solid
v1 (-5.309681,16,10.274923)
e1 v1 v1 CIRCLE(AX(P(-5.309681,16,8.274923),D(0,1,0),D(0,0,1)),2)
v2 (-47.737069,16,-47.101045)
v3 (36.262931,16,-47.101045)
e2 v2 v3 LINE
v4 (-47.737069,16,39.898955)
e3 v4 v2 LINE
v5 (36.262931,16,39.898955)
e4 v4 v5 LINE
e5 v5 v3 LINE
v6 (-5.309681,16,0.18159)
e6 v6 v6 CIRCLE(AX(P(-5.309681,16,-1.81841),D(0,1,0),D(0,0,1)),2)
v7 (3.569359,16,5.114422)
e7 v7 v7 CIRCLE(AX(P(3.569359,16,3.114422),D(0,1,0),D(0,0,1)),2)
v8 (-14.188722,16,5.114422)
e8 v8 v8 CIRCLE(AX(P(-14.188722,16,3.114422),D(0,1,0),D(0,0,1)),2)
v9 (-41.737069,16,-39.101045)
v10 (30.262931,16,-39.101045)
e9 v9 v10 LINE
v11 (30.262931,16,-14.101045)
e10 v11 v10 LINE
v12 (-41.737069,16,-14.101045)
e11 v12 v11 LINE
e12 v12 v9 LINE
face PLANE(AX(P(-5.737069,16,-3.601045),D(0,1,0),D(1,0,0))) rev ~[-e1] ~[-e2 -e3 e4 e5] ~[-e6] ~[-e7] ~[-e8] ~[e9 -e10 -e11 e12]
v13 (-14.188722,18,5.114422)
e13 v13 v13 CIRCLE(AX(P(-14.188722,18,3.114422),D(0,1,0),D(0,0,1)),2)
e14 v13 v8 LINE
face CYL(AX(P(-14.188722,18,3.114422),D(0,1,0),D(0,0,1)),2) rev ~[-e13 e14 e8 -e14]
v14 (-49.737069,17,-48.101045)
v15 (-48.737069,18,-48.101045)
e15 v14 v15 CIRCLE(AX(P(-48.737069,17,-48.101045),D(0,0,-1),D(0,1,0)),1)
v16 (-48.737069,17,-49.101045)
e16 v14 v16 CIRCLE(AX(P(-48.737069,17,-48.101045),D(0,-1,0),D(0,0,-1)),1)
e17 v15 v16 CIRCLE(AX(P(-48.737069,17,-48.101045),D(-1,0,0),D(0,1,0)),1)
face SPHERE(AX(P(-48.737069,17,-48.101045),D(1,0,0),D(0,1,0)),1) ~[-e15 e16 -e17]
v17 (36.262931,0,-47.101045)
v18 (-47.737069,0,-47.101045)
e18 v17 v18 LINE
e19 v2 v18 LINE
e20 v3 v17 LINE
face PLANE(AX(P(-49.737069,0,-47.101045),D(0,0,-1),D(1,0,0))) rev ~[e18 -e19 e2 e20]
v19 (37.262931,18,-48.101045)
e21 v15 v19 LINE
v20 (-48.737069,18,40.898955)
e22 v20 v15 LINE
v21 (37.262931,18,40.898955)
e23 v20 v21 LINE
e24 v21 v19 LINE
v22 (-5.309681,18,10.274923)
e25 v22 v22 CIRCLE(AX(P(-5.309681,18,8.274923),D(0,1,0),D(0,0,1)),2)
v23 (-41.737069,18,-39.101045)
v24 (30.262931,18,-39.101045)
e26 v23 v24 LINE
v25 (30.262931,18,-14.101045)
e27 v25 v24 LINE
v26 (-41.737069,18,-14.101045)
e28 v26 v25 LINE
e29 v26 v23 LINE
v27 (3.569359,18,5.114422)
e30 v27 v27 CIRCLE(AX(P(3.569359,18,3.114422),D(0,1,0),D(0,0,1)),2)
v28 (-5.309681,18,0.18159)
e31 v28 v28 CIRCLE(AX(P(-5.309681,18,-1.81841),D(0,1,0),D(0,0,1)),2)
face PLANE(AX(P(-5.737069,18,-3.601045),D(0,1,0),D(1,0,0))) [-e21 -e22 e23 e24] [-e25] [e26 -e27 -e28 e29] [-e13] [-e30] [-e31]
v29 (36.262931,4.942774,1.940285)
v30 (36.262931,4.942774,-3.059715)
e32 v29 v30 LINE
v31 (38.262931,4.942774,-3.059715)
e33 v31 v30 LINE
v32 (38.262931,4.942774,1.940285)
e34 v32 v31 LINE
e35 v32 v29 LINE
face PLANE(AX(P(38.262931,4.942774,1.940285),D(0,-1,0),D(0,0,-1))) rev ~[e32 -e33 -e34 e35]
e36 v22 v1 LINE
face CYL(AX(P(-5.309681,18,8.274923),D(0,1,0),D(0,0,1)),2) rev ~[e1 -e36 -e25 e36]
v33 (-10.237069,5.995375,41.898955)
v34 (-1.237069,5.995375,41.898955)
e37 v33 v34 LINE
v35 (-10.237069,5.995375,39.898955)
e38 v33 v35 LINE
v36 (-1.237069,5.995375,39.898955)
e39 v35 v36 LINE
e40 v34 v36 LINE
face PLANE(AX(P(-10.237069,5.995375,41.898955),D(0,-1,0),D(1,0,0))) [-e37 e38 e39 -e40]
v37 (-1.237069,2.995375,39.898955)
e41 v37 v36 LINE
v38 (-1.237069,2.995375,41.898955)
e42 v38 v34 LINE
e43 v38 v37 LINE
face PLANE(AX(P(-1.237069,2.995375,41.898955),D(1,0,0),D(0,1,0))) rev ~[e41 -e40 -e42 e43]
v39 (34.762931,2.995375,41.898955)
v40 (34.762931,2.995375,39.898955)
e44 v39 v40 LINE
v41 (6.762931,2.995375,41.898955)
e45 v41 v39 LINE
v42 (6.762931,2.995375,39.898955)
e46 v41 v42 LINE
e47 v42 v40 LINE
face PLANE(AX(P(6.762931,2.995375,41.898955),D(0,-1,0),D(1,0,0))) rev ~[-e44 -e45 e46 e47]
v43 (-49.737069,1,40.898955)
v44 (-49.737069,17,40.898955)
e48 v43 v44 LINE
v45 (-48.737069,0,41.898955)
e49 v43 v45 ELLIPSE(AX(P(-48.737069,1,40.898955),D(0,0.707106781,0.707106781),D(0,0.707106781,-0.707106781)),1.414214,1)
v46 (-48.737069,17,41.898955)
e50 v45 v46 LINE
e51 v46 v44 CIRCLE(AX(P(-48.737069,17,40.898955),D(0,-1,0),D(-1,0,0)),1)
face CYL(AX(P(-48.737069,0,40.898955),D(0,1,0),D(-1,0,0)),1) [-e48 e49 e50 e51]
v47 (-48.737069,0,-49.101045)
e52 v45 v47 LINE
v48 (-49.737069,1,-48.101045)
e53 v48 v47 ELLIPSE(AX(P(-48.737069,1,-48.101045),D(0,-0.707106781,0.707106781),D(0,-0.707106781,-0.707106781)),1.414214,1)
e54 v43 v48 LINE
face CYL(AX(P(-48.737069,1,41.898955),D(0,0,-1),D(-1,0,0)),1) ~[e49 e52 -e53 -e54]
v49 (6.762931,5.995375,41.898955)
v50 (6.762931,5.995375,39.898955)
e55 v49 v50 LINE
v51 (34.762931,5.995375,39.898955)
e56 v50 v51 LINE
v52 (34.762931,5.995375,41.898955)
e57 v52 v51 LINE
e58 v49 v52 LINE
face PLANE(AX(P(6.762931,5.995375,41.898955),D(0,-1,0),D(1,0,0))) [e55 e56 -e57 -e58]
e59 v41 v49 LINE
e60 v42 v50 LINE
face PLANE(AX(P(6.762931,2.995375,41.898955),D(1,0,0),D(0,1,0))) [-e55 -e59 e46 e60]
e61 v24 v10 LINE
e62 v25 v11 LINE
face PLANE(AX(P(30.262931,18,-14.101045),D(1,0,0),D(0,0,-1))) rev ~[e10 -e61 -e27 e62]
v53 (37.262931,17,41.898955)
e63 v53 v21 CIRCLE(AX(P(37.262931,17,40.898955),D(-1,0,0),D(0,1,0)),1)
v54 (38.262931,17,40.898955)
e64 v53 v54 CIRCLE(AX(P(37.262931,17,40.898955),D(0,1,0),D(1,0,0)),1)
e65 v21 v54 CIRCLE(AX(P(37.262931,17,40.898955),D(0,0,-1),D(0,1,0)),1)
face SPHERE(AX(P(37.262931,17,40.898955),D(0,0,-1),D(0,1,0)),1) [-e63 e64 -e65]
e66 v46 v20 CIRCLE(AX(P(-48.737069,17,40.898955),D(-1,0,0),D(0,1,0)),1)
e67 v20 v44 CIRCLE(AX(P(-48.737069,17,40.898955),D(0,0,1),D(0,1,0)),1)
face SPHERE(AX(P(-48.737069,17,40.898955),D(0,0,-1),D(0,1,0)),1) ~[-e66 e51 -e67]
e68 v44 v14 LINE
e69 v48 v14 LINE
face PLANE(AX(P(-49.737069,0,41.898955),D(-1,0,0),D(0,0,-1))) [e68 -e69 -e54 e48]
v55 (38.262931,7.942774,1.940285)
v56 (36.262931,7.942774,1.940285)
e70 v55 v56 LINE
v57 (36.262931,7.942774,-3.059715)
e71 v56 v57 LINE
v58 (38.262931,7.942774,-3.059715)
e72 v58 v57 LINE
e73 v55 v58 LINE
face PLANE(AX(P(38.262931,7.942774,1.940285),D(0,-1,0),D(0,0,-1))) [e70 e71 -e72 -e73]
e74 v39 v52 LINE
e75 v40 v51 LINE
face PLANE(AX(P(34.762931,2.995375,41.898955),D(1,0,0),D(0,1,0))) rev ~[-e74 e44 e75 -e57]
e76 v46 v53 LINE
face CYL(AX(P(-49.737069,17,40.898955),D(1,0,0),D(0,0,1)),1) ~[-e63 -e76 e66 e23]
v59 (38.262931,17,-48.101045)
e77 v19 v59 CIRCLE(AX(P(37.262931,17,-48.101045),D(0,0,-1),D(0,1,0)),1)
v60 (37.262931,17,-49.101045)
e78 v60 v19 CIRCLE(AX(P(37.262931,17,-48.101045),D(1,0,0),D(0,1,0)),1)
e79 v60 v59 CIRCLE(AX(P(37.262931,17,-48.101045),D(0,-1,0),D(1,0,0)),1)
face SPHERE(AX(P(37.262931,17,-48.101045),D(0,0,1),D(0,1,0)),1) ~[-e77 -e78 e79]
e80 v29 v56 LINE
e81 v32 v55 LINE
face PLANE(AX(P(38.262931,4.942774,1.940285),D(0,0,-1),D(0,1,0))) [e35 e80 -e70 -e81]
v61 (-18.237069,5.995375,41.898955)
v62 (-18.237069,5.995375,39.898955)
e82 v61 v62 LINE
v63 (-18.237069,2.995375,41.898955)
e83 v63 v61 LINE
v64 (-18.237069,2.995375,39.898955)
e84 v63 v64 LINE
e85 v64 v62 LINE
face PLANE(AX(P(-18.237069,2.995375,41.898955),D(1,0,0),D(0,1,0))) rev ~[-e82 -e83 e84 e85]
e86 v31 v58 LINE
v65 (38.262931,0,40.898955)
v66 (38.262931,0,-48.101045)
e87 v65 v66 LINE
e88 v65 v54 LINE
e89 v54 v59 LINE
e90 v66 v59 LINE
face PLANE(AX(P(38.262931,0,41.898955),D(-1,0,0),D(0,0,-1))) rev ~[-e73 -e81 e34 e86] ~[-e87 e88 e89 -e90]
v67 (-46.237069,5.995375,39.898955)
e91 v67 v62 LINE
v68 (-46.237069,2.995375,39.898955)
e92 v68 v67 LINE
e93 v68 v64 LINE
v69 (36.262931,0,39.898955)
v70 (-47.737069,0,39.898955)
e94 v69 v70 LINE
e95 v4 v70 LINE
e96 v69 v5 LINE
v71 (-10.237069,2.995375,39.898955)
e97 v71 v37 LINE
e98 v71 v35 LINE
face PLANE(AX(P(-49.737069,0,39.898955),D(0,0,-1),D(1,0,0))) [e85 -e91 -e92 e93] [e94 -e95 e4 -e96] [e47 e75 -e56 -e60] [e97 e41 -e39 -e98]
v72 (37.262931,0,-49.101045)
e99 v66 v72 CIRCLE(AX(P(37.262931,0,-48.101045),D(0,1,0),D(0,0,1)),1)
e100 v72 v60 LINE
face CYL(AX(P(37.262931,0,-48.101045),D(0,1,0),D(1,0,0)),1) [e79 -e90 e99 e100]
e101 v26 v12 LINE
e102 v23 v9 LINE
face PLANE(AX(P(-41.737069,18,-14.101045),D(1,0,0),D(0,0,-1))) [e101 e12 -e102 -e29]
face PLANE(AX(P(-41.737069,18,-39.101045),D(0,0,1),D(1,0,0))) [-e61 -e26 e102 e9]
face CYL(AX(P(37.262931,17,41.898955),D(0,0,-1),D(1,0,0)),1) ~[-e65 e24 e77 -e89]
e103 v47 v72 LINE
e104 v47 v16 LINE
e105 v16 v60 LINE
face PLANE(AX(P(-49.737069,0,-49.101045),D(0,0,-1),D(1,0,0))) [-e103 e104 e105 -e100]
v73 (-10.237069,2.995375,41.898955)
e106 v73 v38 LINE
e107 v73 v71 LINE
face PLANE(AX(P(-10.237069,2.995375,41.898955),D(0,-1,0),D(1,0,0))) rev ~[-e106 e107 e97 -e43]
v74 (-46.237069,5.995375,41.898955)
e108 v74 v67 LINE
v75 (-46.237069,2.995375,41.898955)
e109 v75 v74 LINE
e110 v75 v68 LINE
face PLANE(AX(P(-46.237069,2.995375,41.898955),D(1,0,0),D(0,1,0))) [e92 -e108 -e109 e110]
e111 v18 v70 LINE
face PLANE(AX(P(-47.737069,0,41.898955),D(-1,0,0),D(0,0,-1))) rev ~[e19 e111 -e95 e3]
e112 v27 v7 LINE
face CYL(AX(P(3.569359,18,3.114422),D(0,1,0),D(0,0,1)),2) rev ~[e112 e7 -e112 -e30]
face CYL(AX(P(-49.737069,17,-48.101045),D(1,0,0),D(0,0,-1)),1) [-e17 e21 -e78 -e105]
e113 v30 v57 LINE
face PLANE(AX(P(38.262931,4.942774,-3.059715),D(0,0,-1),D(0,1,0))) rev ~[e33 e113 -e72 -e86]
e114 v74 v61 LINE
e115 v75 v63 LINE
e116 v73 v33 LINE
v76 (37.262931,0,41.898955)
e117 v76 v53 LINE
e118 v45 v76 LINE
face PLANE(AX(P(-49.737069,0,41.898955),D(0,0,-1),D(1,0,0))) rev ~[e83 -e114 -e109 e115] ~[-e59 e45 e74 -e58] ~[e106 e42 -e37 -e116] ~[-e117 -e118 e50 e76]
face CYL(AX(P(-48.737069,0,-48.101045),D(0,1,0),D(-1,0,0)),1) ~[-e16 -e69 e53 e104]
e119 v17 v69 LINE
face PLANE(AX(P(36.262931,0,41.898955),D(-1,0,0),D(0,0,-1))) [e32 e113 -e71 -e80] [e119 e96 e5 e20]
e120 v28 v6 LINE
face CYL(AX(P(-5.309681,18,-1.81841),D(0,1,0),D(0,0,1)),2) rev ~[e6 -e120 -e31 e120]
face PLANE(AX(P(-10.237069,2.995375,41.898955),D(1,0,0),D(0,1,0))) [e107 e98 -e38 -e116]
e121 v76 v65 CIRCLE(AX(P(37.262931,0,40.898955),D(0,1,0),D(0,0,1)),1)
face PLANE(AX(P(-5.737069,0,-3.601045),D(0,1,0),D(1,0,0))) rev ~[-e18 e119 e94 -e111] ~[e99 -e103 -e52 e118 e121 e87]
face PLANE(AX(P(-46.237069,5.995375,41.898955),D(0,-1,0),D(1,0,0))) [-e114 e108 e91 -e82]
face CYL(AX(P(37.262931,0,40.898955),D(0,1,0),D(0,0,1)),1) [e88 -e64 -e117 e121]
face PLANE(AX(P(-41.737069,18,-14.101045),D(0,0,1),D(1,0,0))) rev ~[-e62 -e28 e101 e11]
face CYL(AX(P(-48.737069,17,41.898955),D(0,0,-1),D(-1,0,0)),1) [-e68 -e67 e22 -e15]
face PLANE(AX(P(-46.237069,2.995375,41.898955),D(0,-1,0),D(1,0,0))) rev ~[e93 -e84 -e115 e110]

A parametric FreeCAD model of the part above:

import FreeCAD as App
import Part
import Sketcher
from FreeCAD import Vector
Q = App.Units.Quantity


def edges_at(feature, points):
    """Names of the edges that pass closest to the given points."""
    edges = feature.Shape.Edges
    near = lambda p: min(range(len(edges)), key=lambda i: edges[i].distToShape(Part.Vertex(*p))[0])
    return sorted({f"Edge{near(p) + 1}" for p in points})


def faces_at(feature, points):
    """Names of the faces that lie closest to the given points."""
    faces = feature.Shape.Faces
    near = lambda p: min(range(len(faces)), key=lambda i: faces[i].distToShape(Part.Vertex(*p))[0])
    return sorted({f"Face{near(p) + 1}" for p in points})

doc = App.newDocument("Part")
body = doc.addObject("PartDesign::Body", "Body")

# Sketch on XZ plane
sketch1 = doc.addObject("Sketcher::SketchObject", "Sketch")
body.addObject(sketch1)
sketch1.AttachmentSupport = (doc.XZ_Plane, [""])
sketch1.MapMode = "FlatFace"
sketch1.addGeometry(Part.LineSegment(Vector(-50, -49, 0), Vector(-50, 42, 0)), False)
sketch1.addGeometry(Part.LineSegment(Vector(-50, 42, 0), Vector(38, 42, 0)), False)
sketch1.addGeometry(Part.LineSegment(Vector(38, 42, 0), Vector(38, -49, 0)), False)
sketch1.addGeometry(Part.LineSegment(Vector(38, -49, 0), Vector(-50, -49, 0)), False)
sketch1.addConstraint(Sketcher.Constraint("Coincident", 0, 2, 1, 1))
sketch1.addConstraint(Sketcher.Constraint("Coincident", 1, 2, 2, 1))
sketch1.addConstraint(Sketcher.Constraint("Coincident", 2, 2, 3, 1))
sketch1.addConstraint(Sketcher.Constraint("Coincident", 3, 2, 0, 1))
sketch1.addConstraint(Sketcher.Constraint("Vertical", 0))
sketch1.addConstraint(Sketcher.Constraint("Horizontal", 1))
sketch1.addConstraint(Sketcher.Constraint("Vertical", 2))
sketch1.addConstraint(Sketcher.Constraint("Horizontal", 3))
sketch1.addConstraint(Sketcher.Constraint("DistanceX", 1, 1, 1, 2, Q("88 mm")))
sketch1.addConstraint(Sketcher.Constraint("DistanceY", 0, 1, 0, 2, Q("91 mm")))
sketch1.addConstraint(Sketcher.Constraint("DistanceX", 0, 2, -1, 1, Q("49.737069 mm")))
sketch1.addConstraint(Sketcher.Constraint("DistanceY", -1, 1, 0, 2, Q("41.898955 mm")))
pad1 = doc.addObject("PartDesign::Pad", "Pad")
body.addObject(pad1)
pad1.Profile = sketch1
pad1.Length = 18
pad1.Reversed = True
doc.recompute()

thickness = doc.addObject("PartDesign::Thickness", "Thickness")
body.addObject(thickness)
thickness.Base = (pad1, faces_at(pad1, [(-5.737, 0, -3.601)]))
thickness.Value = 2
thickness.Reversed = True
thickness.Join = "Intersection"
doc.recompute()

fillet = doc.addObject("PartDesign::Fillet", "Fillet")
body.addObject(fillet)
fillet.Base = (thickness, edges_at(thickness, [
    (38.263, 18, -3.601),
    (-5.737, 18, -49.101),
    (-49.737, 18, -3.601),
    (-49.737, 0, -3.601),
    (-5.737, 18, 41.899),
    (-49.737, 9, -49.101),
    (38.263, 9, -49.101),
    (38.263, 9, 41.899),
    (-49.737, 9, 41.899),
]))
fillet.Radius = 1

# Sketch on XZ plane
sketch2 = doc.addObject("Sketcher::SketchObject", "Sketch001")
body.addObject(sketch2)
sketch2.AttachmentSupport = (doc.XZ_Plane, [""])
sketch2.MapMode = "FlatFace"
sketch2.AttachmentOffset = App.Placement(Vector(0, 0, -18), App.Rotation())
sketch2.addGeometry(Part.Circle(Vector(-5.3, -1.8, 0), Vector(0, 0, 1), 2), False)
sketch2.addGeometry(Part.Circle(Vector(-5.3, 8.3, 0), Vector(0, 0, 1), 2), False)
sketch2.addGeometry(Part.Circle(Vector(-14.2, 3.1, 0), Vector(0, 0, 1), 2), False)
sketch2.addGeometry(Part.Circle(Vector(3.6, 3.1, 0), Vector(0, 0, 1), 2), False)
sketch2.addGeometry(Part.LineSegment(Vector(-41.7, -39.1, 0), Vector(-41.7, -14.1, 0)), False)
sketch2.addGeometry(Part.LineSegment(Vector(-41.7, -14.1, 0), Vector(30.3, -14.1, 0)), False)
sketch2.addGeometry(Part.LineSegment(Vector(30.3, -14.1, 0), Vector(30.3, -39.1, 0)), False)
sketch2.addGeometry(Part.LineSegment(Vector(30.3, -39.1, 0), Vector(-41.7, -39.1, 0)), False)
sketch2.addConstraint(Sketcher.Constraint("Coincident", 4, 2, 5, 1))
sketch2.addConstraint(Sketcher.Constraint("Coincident", 5, 2, 6, 1))
sketch2.addConstraint(Sketcher.Constraint("Coincident", 6, 2, 7, 1))
sketch2.addConstraint(Sketcher.Constraint("Coincident", 7, 2, 4, 1))
sketch2.addConstraint(Sketcher.Constraint("Vertical", 4))
sketch2.addConstraint(Sketcher.Constraint("Horizontal", 5))
sketch2.addConstraint(Sketcher.Constraint("Vertical", 6))
sketch2.addConstraint(Sketcher.Constraint("Horizontal", 7))
sketch2.addConstraint(Sketcher.Constraint("Equal", 0, 1))
sketch2.addConstraint(Sketcher.Constraint("Equal", 1, 2))
sketch2.addConstraint(Sketcher.Constraint("Equal", 2, 3))
sketch2.addConstraint(Sketcher.Constraint("Horizontal", 2, 3, 3, 3))
sketch2.addConstraint(Sketcher.Constraint("Vertical", 0, 3, 1, 3))
sketch2.addConstraint(Sketcher.Constraint("Diameter", 0, Q("4 mm")))
sketch2.addConstraint(Sketcher.Constraint("DistanceX", 5, 1, 5, 2, Q("72 mm")))
sketch2.addConstraint(Sketcher.Constraint("DistanceY", 4, 1, 4, 2, Q("25 mm")))
sketch2.addConstraint(Sketcher.Constraint("DistanceY", 2, 3, 1, 3, Q("5.160501 mm")))
sketch2.addConstraint(Sketcher.Constraint("DistanceX", 0, 3, -1, 1, Q("5.309681 mm")))
sketch2.addConstraint(Sketcher.Constraint("DistanceY", 0, 3, -1, 1, Q("1.81841 mm")))
sketch2.addConstraint(Sketcher.Constraint("DistanceX", 2, 3, -1, 1, Q("14.188722 mm")))
sketch2.addConstraint(Sketcher.Constraint("DistanceX", -1, 1, 3, 3, Q("3.569359 mm")))
sketch2.addConstraint(Sketcher.Constraint("DistanceX", 4, 2, -1, 1, Q("41.737069 mm")))
sketch2.addConstraint(Sketcher.Constraint("DistanceY", 0, 3, 2, 3, Q("4.932832 mm")))
sketch2.addConstraint(Sketcher.Constraint("DistanceY", 4, 2, 1, 3, Q("22.375968 mm")))
pocket1 = doc.addObject("PartDesign::Pocket", "Pocket")
body.addObject(pocket1)
pocket1.Profile = sketch2
pocket1.Length = 18
pocket1.Reversed = True

# Sketch on XY plane
sketch3 = doc.addObject("Sketcher::SketchObject", "Sketch002")
body.addObject(sketch3)
sketch3.AttachmentSupport = (doc.XY_Plane, [""])
sketch3.MapMode = "FlatFace"
sketch3.AttachmentOffset = App.Placement(Vector(0, 0, 41.898955), App.Rotation())
sketch3.addGeometry(Part.LineSegment(Vector(-46.2, 6, 0), Vector(-46.2, 3, 0)), False)
sketch3.addGeometry(Part.LineSegment(Vector(-46.2, 3, 0), Vector(-18.2, 3, 0)), False)
sketch3.addGeometry(Part.LineSegment(Vector(-18.2, 3, 0), Vector(-18.2, 6, 0)), False)
sketch3.addGeometry(Part.LineSegment(Vector(-18.2, 6, 0), Vector(-46.2, 6, 0)), False)
sketch3.addConstraint(Sketcher.Constraint("Coincident", 0, 2, 1, 1))
sketch3.addConstraint(Sketcher.Constraint("Coincident", 1, 2, 2, 1))
sketch3.addConstraint(Sketcher.Constraint("Coincident", 2, 2, 3, 1))
sketch3.addConstraint(Sketcher.Constraint("Coincident", 3, 2, 0, 1))
sketch3.addConstraint(Sketcher.Constraint("Vertical", 0))
sketch3.addConstraint(Sketcher.Constraint("Horizontal", 1))
sketch3.addConstraint(Sketcher.Constraint("Vertical", 2))
sketch3.addConstraint(Sketcher.Constraint("Horizontal", 3))
sketch3.addConstraint(Sketcher.Constraint("DistanceX", 1, 1, 1, 2, Q("28 mm")))
sketch3.addConstraint(Sketcher.Constraint("DistanceY", 0, 2, 0, 1, Q("3 mm")))
sketch3.addConstraint(Sketcher.Constraint("DistanceX", 0, 2, -1, 1, Q("46.237069 mm")))
sketch3.addConstraint(Sketcher.Constraint("DistanceY", -1, 1, 0, 2, Q("2.995375 mm")))
pocket2 = doc.addObject("PartDesign::Pocket", "Pocket001")
body.addObject(pocket2)
pocket2.Profile = sketch3
pocket2.Type = "UpToFirst"

# Sketch on XY plane
sketch4 = doc.addObject("Sketcher::SketchObject", "Sketch003")
body.addObject(sketch4)
sketch4.AttachmentSupport = (doc.XY_Plane, [""])
sketch4.MapMode = "FlatFace"
sketch4.AttachmentOffset = App.Placement(Vector(0, 0, 41.898955), App.Rotation())
sketch4.addGeometry(Part.LineSegment(Vector(6.8, 6, 0), Vector(6.8, 3, 0)), False)
sketch4.addGeometry(Part.LineSegment(Vector(6.8, 3, 0), Vector(34.8, 3, 0)), False)
sketch4.addGeometry(Part.LineSegment(Vector(34.8, 3, 0), Vector(34.8, 6, 0)), False)
sketch4.addGeometry(Part.LineSegment(Vector(34.8, 6, 0), Vector(6.8, 6, 0)), False)
sketch4.addConstraint(Sketcher.Constraint("Coincident", 0, 2, 1, 1))
sketch4.addConstraint(Sketcher.Constraint("Coincident", 1, 2, 2, 1))
sketch4.addConstraint(Sketcher.Constraint("Coincident", 2, 2, 3, 1))
sketch4.addConstraint(Sketcher.Constraint("Coincident", 3, 2, 0, 1))
sketch4.addConstraint(Sketcher.Constraint("Vertical", 0))
sketch4.addConstraint(Sketcher.Constraint("Horizontal", 1))
sketch4.addConstraint(Sketcher.Constraint("Vertical", 2))
sketch4.addConstraint(Sketcher.Constraint("Horizontal", 3))
sketch4.addConstraint(Sketcher.Constraint("DistanceX", 1, 1, 1, 2, Q("28 mm")))
sketch4.addConstraint(Sketcher.Constraint("DistanceY", 0, 2, 0, 1, Q("3 mm")))
sketch4.addConstraint(Sketcher.Constraint("DistanceX", -1, 1, 0, 2, Q("6.762931 mm")))
sketch4.addConstraint(Sketcher.Constraint("DistanceY", -1, 1, 0, 2, Q("2.995375 mm")))
pocket3 = doc.addObject("PartDesign::Pocket", "Pocket002")
body.addObject(pocket3)
pocket3.Profile = sketch4
pocket3.Type = "UpToFirst"

# Sketch on XY plane
sketch5 = doc.addObject("Sketcher::SketchObject", "Sketch004")
body.addObject(sketch5)
sketch5.AttachmentSupport = (doc.XY_Plane, [""])
sketch5.MapMode = "FlatFace"
sketch5.AttachmentOffset = App.Placement(Vector(0, 0, 41.898955), App.Rotation())
sketch5.addGeometry(Part.LineSegment(Vector(-10.2, 6, 0), Vector(-10.2, 3, 0)), False)
sketch5.addGeometry(Part.LineSegment(Vector(-10.2, 3, 0), Vector(-1.2, 3, 0)), False)
sketch5.addGeometry(Part.LineSegment(Vector(-1.2, 3, 0), Vector(-1.2, 6, 0)), False)
sketch5.addGeometry(Part.LineSegment(Vector(-1.2, 6, 0), Vector(-10.2, 6, 0)), False)
sketch5.addConstraint(Sketcher.Constraint("Coincident", 0, 2, 1, 1))
sketch5.addConstraint(Sketcher.Constraint("Coincident", 1, 2, 2, 1))
sketch5.addConstraint(Sketcher.Constraint("Coincident", 2, 2, 3, 1))
sketch5.addConstraint(Sketcher.Constraint("Coincident", 3, 2, 0, 1))
sketch5.addConstraint(Sketcher.Constraint("Vertical", 0))
sketch5.addConstraint(Sketcher.Constraint("Horizontal", 1))
sketch5.addConstraint(Sketcher.Constraint("Vertical", 2))
sketch5.addConstraint(Sketcher.Constraint("Horizontal", 3))
sketch5.addConstraint(Sketcher.Constraint("DistanceX", 1, 1, 1, 2, Q("9 mm")))
sketch5.addConstraint(Sketcher.Constraint("DistanceY", 0, 2, 0, 1, Q("3 mm")))
sketch5.addConstraint(Sketcher.Constraint("DistanceX", 0, 2, -1, 1, Q("10.237069 mm")))
sketch5.addConstraint(Sketcher.Constraint("DistanceY", -1, 1, 0, 2, Q("2.995375 mm")))
pocket4 = doc.addObject("PartDesign::Pocket", "Pocket003")
body.addObject(pocket4)
pocket4.Profile = sketch5
pocket4.Type = "UpToFirst"

# Sketch on YZ plane
sketch6 = doc.addObject("Sketcher::SketchObject", "Sketch005")
body.addObject(sketch6)
sketch6.AttachmentSupport = (doc.YZ_Plane, [""])
sketch6.MapMode = "FlatFace"
sketch6.AttachmentOffset = App.Placement(Vector(0, 0, 38.262931), App.Rotation())
sketch6.addGeometry(Part.LineSegment(Vector(7.9, 1.9, 0), Vector(4.9, 1.9, 0)), False)
sketch6.addGeometry(Part.LineSegment(Vector(4.9, 1.9, 0), Vector(4.9, -3.1, 0)), False)
sketch6.addGeometry(Part.LineSegment(Vector(4.9, -3.1, 0), Vector(7.9, -3.1, 0)), False)
sketch6.addGeometry(Part.LineSegment(Vector(7.9, -3.1, 0), Vector(7.9, 1.9, 0)), False)
sketch6.addConstraint(Sketcher.Constraint("Coincident", 0, 2, 1, 1))
sketch6.addConstraint(Sketcher.Constraint("Coincident", 1, 2, 2, 1))
sketch6.addConstraint(Sketcher.Constraint("Coincident", 2, 2, 3, 1))
sketch6.addConstraint(Sketcher.Constraint("Coincident", 3, 2, 0, 1))
sketch6.addConstraint(Sketcher.Constraint("Horizontal", 0))
sketch6.addConstraint(Sketcher.Constraint("Vertical", 1))
sketch6.addConstraint(Sketcher.Constraint("Horizontal", 2))
sketch6.addConstraint(Sketcher.Constraint("Vertical", 3))
sketch6.addConstraint(Sketcher.Constraint("DistanceX", 0, 2, 0, 1, Q("3 mm")))
sketch6.addConstraint(Sketcher.Constraint("DistanceY", 1, 2, 1, 1, Q("5 mm")))
sketch6.addConstraint(Sketcher.Constraint("DistanceX", -1, 1, 0, 2, Q("4.942774 mm")))
sketch6.addConstraint(Sketcher.Constraint("DistanceY", -1, 1, 0, 2, Q("1.940285 mm")))
pocket5 = doc.addObject("PartDesign::Pocket", "Pocket004")
body.addObject(pocket5)
pocket5.Profile = sketch6
pocket5.Type = "UpToFirst"

doc.recompute()
